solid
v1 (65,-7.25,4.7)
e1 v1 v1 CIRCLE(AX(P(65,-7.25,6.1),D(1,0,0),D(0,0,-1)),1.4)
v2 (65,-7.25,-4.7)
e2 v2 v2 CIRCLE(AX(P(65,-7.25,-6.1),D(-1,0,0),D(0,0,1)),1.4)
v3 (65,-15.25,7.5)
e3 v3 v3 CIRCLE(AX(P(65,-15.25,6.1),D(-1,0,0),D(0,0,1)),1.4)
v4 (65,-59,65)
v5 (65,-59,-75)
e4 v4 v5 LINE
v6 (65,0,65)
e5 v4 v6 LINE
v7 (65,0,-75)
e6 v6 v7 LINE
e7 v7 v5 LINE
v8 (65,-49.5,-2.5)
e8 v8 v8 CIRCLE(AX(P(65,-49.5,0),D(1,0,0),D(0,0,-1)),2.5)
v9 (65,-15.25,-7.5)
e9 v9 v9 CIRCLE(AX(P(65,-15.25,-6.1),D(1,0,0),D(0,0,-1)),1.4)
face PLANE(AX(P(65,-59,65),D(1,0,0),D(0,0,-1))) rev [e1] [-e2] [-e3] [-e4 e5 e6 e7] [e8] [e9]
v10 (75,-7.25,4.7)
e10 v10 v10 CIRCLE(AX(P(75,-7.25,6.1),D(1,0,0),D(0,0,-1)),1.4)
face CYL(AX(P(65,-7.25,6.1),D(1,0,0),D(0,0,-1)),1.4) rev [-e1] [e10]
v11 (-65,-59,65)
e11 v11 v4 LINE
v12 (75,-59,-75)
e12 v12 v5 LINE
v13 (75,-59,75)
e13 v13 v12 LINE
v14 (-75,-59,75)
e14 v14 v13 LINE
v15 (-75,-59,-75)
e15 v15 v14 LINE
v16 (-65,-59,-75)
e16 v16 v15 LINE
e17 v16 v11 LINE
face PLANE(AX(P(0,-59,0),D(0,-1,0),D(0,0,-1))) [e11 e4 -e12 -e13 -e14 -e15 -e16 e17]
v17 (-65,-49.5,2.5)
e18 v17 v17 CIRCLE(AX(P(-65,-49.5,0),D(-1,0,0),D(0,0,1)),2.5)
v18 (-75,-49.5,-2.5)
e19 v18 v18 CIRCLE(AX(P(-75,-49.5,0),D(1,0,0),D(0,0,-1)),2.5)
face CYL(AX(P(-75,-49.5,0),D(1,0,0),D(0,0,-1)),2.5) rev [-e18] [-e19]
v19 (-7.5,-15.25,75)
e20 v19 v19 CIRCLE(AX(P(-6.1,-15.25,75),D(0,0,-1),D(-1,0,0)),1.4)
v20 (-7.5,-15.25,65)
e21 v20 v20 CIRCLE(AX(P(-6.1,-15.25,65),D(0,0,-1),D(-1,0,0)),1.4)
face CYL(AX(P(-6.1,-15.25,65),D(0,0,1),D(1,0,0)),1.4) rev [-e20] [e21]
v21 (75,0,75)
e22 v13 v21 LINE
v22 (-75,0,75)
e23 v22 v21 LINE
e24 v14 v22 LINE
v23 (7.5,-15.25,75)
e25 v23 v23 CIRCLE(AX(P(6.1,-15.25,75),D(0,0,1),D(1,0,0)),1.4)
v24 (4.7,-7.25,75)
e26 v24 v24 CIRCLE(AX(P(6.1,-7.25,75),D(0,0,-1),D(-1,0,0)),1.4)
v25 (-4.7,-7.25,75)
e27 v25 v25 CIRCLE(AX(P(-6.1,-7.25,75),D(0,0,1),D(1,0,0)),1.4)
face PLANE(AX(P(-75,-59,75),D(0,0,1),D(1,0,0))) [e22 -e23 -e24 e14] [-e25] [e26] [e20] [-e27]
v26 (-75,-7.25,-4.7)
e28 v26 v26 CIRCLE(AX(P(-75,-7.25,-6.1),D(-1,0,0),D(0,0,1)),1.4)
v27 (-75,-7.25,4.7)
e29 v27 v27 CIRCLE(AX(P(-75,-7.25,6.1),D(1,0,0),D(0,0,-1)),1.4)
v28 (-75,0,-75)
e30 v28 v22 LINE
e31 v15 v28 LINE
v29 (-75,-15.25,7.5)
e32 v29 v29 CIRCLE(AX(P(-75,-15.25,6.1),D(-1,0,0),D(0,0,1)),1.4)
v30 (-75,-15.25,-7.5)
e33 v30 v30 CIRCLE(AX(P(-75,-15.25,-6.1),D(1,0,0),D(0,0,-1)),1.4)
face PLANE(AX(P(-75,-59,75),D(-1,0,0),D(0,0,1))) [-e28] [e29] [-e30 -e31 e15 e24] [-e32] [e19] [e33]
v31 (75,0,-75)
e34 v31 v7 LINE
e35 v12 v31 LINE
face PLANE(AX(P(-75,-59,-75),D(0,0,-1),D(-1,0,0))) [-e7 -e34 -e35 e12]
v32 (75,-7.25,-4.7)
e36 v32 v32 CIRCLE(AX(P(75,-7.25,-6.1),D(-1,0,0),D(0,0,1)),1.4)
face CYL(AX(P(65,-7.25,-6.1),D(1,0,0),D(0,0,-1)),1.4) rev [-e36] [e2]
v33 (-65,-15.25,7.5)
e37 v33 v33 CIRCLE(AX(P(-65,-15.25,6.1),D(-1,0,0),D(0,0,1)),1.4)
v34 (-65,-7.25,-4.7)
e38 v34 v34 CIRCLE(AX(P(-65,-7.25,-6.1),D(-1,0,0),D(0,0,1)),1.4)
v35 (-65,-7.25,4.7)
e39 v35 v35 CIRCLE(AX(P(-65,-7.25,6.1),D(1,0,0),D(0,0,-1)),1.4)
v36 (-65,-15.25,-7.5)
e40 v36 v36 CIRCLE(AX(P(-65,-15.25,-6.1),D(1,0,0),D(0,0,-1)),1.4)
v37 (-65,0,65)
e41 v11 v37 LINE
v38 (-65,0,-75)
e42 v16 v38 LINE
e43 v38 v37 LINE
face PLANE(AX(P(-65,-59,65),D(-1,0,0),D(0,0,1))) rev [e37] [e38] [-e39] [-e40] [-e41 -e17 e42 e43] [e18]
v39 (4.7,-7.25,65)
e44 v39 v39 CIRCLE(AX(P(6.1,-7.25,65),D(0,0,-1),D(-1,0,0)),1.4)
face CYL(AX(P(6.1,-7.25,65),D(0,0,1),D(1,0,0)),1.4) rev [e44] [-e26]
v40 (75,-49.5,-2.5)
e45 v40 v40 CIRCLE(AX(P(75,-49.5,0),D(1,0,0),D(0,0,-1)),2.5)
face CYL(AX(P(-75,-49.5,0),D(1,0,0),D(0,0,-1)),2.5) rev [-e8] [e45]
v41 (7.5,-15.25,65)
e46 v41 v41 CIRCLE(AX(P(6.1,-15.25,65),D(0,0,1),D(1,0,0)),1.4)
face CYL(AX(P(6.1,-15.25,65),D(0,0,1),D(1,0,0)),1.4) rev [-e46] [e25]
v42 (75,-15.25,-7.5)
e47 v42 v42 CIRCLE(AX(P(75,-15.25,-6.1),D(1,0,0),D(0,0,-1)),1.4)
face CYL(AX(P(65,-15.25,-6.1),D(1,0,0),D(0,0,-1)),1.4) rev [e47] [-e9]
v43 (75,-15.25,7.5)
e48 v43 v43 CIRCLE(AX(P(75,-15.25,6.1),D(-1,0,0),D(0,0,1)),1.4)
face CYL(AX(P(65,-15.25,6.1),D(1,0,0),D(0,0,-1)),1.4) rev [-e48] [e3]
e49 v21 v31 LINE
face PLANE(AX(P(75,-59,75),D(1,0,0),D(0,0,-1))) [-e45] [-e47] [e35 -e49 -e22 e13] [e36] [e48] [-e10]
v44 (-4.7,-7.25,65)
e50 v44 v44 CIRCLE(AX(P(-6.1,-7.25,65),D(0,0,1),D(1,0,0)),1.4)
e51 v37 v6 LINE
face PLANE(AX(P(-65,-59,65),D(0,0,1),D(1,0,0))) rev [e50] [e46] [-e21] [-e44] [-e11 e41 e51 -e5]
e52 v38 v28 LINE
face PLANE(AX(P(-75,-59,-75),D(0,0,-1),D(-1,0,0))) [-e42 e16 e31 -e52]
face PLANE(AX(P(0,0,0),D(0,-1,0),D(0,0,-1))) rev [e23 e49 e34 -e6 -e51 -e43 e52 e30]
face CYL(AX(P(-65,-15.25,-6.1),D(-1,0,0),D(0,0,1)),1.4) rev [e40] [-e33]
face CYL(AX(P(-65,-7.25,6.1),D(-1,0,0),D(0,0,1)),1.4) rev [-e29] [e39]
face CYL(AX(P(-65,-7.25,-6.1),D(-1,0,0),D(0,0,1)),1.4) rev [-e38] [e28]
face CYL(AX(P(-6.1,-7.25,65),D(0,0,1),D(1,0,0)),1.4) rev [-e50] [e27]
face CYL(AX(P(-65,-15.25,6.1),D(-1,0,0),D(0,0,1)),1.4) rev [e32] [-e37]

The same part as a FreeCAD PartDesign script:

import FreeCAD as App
import Part
import Sketcher

V = App.Vector
Q = App.Units.Quantity

doc = App.newDocument("Part")
params = doc.addObject("Spreadsheet::Sheet", "Params")
for row, (alias, value) in enumerate([
    ("sketch1_width", "150 mm"),
    ("pad1_length", "59 mm"),
    ("sketch2_width", "130 mm"),
    ("sketch3_diameter", "2.8 mm"),
    ("pocket2_length", "10 mm"),
    ("sketch4_width", "130 mm"),
    ("sketch5_diameter", "5 mm"),
], start=1):
    params.set(f"A{row}", alias)
    params.set(f"B{row}", "=" + value)
    params.setAlias(f"B{row}", alias)

body = doc.addObject("PartDesign::Body", "Body")

# Sketch on XZ plane
sketch1 = body.newObject("Sketcher::SketchObject", "Sketch")
sketch1.AttachmentSupport = (doc.getObject("XZ_Plane"), [""])
sketch1.MapMode = "FlatFace"
sketch1.addGeometry(Part.LineSegment(V(-75, -75, 0), V(-75, 75, 0)), False)
sketch1.addGeometry(Part.LineSegment(V(-75, 75, 0), V(75, 75, 0)), False)
sketch1.addGeometry(Part.LineSegment(V(75, 75, 0), V(75, -75, 0)), False)
sketch1.addGeometry(Part.LineSegment(V(75, -75, 0), V(-75, -75, 0)), False)
sketch1.addConstraint(Sketcher.Constraint("Coincident", 0, 2, 1, 1))
sketch1.addConstraint(Sketcher.Constraint("Coincident", 1, 2, 2, 1))
sketch1.addConstraint(Sketcher.Constraint("Coincident", 2, 2, 3, 1))
sketch1.addConstraint(Sketcher.Constraint("Coincident", 3, 2, 0, 1))
sketch1.addConstraint(Sketcher.Constraint("Vertical", 0))
sketch1.addConstraint(Sketcher.Constraint("Horizontal", 1))
sketch1.addConstraint(Sketcher.Constraint("Vertical", 2))
sketch1.addConstraint(Sketcher.Constraint("Horizontal", 3))
sketch1.addConstraint(Sketcher.Constraint("Symmetric", 0, 2, 2, 2, -1, 1))
sketch1.addConstraint(Sketcher.Constraint("Equal", 3, 0))
sketch1.addConstraint(Sketcher.Constraint("DistanceX", 1, 1, 1, 2, Q("150 mm")))
sketch1.setExpression("Constraints[10]", "Params.sketch1_width")
pad1 = body.newObject("PartDesign::Pad", "Pad")
pad1.Profile = sketch1
pad1.setExpression("Length", "Params.pad1_length")

# Sketch on XZ plane
sketch2 = body.newObject("Sketcher::SketchObject", "Sketch001")
sketch2.AttachmentSupport = (doc.getObject("XZ_Plane"), [""])
sketch2.MapMode = "FlatFace"
sketch2.addGeometry(Part.LineSegment(V(-65, -65, 0), V(-65, 65, 0)), False)
sketch2.addGeometry(Part.LineSegment(V(-65, 65, 0), V(65, 65, 0)), False)
sketch2.addGeometry(Part.LineSegment(V(65, 65, 0), V(65, -65, 0)), False)
sketch2.addGeometry(Part.LineSegment(V(65, -65, 0), V(-65, -65, 0)), False)
sketch2.addConstraint(Sketcher.Constraint("Coincident", 0, 2, 1, 1))
sketch2.addConstraint(Sketcher.Constraint("Coincident", 1, 2, 2, 1))
sketch2.addConstraint(Sketcher.Constraint("Coincident", 2, 2, 3, 1))
sketch2.addConstraint(Sketcher.Constraint("Coincident", 3, 2, 0, 1))
sketch2.addConstraint(Sketcher.Constraint("Vertical", 0))
sketch2.addConstraint(Sketcher.Constraint("Horizontal", 1))
sketch2.addConstraint(Sketcher.Constraint("Vertical", 2))
sketch2.addConstraint(Sketcher.Constraint("Horizontal", 3))
sketch2.addConstraint(Sketcher.Constraint("Symmetric", 0, 2, 2, 2, -1, 1))
sketch2.addConstraint(Sketcher.Constraint("Equal", 3, 0))
sketch2.addConstraint(Sketcher.Constraint("DistanceX", 1, 1, 1, 2, Q("130 mm")))
sketch2.setExpression("Constraints[10]", "Params.sketch2_width")
pocket1 = body.newObject("PartDesign::Pocket", "Pocket")
pocket1.Profile = sketch2
pocket1.Type = "ThroughAll"
pocket1.Reversed = True

# Sketch on YZ plane
sketch3 = body.newObject("Sketcher::SketchObject", "Sketch002")
sketch3.AttachmentSupport = (doc.getObject("YZ_Plane"), [""])
sketch3.MapMode = "FlatFace"
sketch3.AttachmentOffset = App.Placement(V(0, 0, -75), App.Rotation())
sketch3.addGeometry(Part.Circle(V(-7.2, -6.1, 0), V(0, 0, 1), 1.4), False)
sketch3.addGeometry(Part.Circle(V(-7.2, 6.1, 0), V(0, 0, 1), 1.4), False)
sketch3.addGeometry(Part.Circle(V(-15.2, 6.1, 0), V(0, 0, 1), 1.4), False)
sketch3.addGeometry(Part.Circle(V(-15.2, -6.1, 0), V(0, 0, 1), 1.4), False)
sketch3.addConstraint(Sketcher.Constraint("Equal", 0, 1))
sketch3.addConstraint(Sketcher.Constraint("Equal", 1, 2))
sketch3.addConstraint(Sketcher.Constraint("Equal", 2, 3))
sketch3.addConstraint(Sketcher.Constraint("Symmetric", 0, 3, 1, 3, -1))
sketch3.addConstraint(Sketcher.Constraint("Symmetric", 2, 3, 3, 3, -1))
sketch3.addConstraint(Sketcher.Constraint("Horizontal", 1, 3, 2, 3))
sketch3.addConstraint(Sketcher.Constraint("Diameter", 0, Q("2.8 mm")))
sketch3.addConstraint(Sketcher.Constraint("DistanceX", 2, 3, 1, 3, Q("8 mm")))
sketch3.addConstraint(Sketcher.Constraint("DistanceY", 0, 3, -1, 1, Q("6.1 mm")))
sketch3.addConstraint(Sketcher.Constraint("DistanceX", 0, 3, -1, 1, Q("7.25 mm")))
sketch3.setExpression("Constraints[6]", "Params.sketch3_diameter")
pocket2 = body.newObject("PartDesign::Pocket", "Pocket001")
pocket2.Profile = sketch3
pocket2.setExpression("Length", "Params.pocket2_length")
pocket2.Reversed = True
doc.recompute()

polarpattern = body.newObject("PartDesign::PolarPattern", "PolarPattern")
polarpattern.Originals = [pocket2]
polarpattern.Axis = (doc.getObject("Y_Axis"), [""])
polarpattern.Angle = 180
polarpattern.Occurrences = 3
body.Tip = polarpattern

# Sketch on XZ plane
sketch4 = body.newObject("Sketcher::SketchObject", "Sketch003")
sketch4.AttachmentSupport = (doc.getObject("XZ_Plane"), [""])
sketch4.MapMode = "FlatFace"
sketch4.addGeometry(Part.LineSegment(V(-65, -161, 0), V(-65, -65, 0)), False)
sketch4.addGeometry(Part.LineSegment(V(-65, -65, 0), V(65, -65, 0)), False)
sketch4.addGeometry(Part.LineSegment(V(65, -65, 0), V(65, -161, 0)), False)
sketch4.addGeometry(Part.LineSegment(V(65, -161, 0), V(-65, -161, 0)), False)
sketch4.addConstraint(Sketcher.Constraint("Coincident", 0, 2, 1, 1))
sketch4.addConstraint(Sketcher.Constraint("Coincident", 1, 2, 2, 1))
sketch4.addConstraint(Sketcher.Constraint("Coincident", 2, 2, 3, 1))
sketch4.addConstraint(Sketcher.Constraint("Coincident", 3, 2, 0, 1))
sketch4.addConstraint(Sketcher.Constraint("Vertical", 0))
sketch4.addConstraint(Sketcher.Constraint("Horizontal", 1))
sketch4.addConstraint(Sketcher.Constraint("Vertical", 2))
sketch4.addConstraint(Sketcher.Constraint("Horizontal", 3))
sketch4.addConstraint(Sketcher.Constraint("DistanceX", 1, 1, 1, 2, Q("130 mm")))
sketch4.addConstraint(Sketcher.Constraint("DistanceX", 0, 2, -1, 1, Q("65 mm")))
sketch4.addConstraint(Sketcher.Constraint("DistanceY", 0, 2, -1, 1, Q("65 mm")))
sketch4.addConstraint(Sketcher.Constraint("DistanceY", 0, 1, 0, 2, Q("96.398296 mm")))
sketch4.setExpression("Constraints[8]", "Params.sketch4_width")
pocket3 = body.newObject("PartDesign::Pocket", "Pocket002")
pocket3.Profile = sketch4
pocket3.Type = "ThroughAll"
pocket3.Reversed = True

# Sketch on YZ plane
sketch5 = body.newObject("Sketcher::SketchObject", "Sketch004")
sketch5.AttachmentSupport = (doc.getObject("YZ_Plane"), [""])
sketch5.MapMode = "FlatFace"
sketch5.AttachmentOffset = App.Placement(V(0, 0, 75), App.Rotation())
sketch5.addGeometry(Part.Circle(V(-49.5, 0, 0), V(0, 0, 1), 2.5), False)
sketch5.addConstraint(Sketcher.Constraint("PointOnObject", 0, 3, -1))
sketch5.addConstraint(Sketcher.Constraint("Diameter", 0, Q("5 mm")))
sketch5.addConstraint(Sketcher.Constraint("DistanceX", 0, 3, -1, 1, Q("49.5 mm")))
sketch5.setExpression("Constraints[1]", "Params.sketch5_diameter")
pocket4 = body.newObject("PartDesign::Pocket", "Pocket003")
pocket4.Profile = sketch5
pocket4.Type = "ThroughAll"

doc.recompute()
